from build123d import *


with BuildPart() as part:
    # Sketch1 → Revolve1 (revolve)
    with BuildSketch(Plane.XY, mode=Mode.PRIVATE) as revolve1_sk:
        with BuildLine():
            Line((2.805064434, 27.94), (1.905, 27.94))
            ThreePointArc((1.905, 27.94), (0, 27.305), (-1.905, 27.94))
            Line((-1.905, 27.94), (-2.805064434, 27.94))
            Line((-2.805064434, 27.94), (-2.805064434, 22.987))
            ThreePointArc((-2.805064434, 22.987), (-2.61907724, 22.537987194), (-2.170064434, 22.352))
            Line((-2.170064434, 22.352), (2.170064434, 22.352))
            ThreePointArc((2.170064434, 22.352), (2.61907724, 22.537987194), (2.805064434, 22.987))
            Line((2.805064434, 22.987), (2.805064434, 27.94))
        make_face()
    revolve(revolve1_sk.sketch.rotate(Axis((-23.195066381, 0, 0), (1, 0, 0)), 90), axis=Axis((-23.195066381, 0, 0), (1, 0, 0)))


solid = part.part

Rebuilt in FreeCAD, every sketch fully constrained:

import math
import FreeCAD as App
import Part
import Sketcher

V = App.Vector
Q = App.Units.Quantity

doc = App.newDocument("Part")
body = doc.addObject("PartDesign::Body", "Body")

sketch1 = body.newObject("Sketcher::SketchObject", "Sketch")
sketch1.AttachmentSupport = (doc.getObject("XY_Plane"), [""])
sketch1.MapMode = "FlatFace"
sketch1.addGeometry(Part.LineSegment(V(2.8, 27.9, 0), V(1.9, 27.9, 0)), False)
sketch1.addGeometry(Part.ArcOfCircle(Part.Circle(V(0, 30.5, 0), V(0, 0, 1), 3.2), math.radians(-127), math.radians(-53)), False)
sketch1.addGeometry(Part.LineSegment(V(-1.9, 27.9, 0), V(-2.8, 27.9, 0)), False)
sketch1.addGeometry(Part.LineSegment(V(-2.8, 27.9, 0), V(-2.8, 23, 0)), False)
sketch1.addGeometry(Part.ArcOfCircle(Part.Circle(V(-2.2, 23, 0), V(0, 0, 1), 0.6), math.radians(180), math.radians(270)), False)
sketch1.addGeometry(Part.LineSegment(V(-2.2, 22.4, 0), V(2.2, 22.4, 0)), False)
sketch1.addGeometry(Part.ArcOfCircle(Part.Circle(V(2.2, 23, 0), V(0, 0, 1), 0.6), math.radians(-90), math.radians(0)), False)
sketch1.addGeometry(Part.LineSegment(V(2.8, 23, 0), V(2.8, 27.9, 0)), False)
sketch1.addConstraint(Sketcher.Constraint("Coincident", 0, 2, 1, 2))
sketch1.addConstraint(Sketcher.Constraint("Coincident", 1, 1, 2, 1))
sketch1.addConstraint(Sketcher.Constraint("Coincident", 2, 2, 3, 1))
sketch1.addConstraint(Sketcher.Constraint("Tangent", 3, 2, 4, 1))
sketch1.addConstraint(Sketcher.Constraint("Tangent", 4, 2, 5, 1))
sketch1.addConstraint(Sketcher.Constraint("Tangent", 5, 2, 6, 1))
sketch1.addConstraint(Sketcher.Constraint("Tangent", 6, 2, 7, 1))
sketch1.addConstraint(Sketcher.Constraint("Coincident", 7, 2, 0, 1))
sketch1.addConstraint(Sketcher.Constraint("Horizontal", 0))
sketch1.addConstraint(Sketcher.Constraint("Horizontal", 2))
sketch1.addConstraint(Sketcher.Constraint("Vertical", 3))
sketch1.addConstraint(Sketcher.Constraint("Horizontal", 5))
sketch1.addConstraint(Sketcher.Constraint("Vertical", 7))
sketch1.addConstraint(Sketcher.Constraint("Equal", 4, 6))
sketch1.addConstraint(Sketcher.Constraint("Symmetric", 0, 2, 1, 1, -2))
sketch1.addConstraint(Sketcher.Constraint("Equal", 0, 2))
sketch1.addConstraint(Sketcher.Constraint("Radius", 1, Q("0.125 in")))
sketch1.addConstraint(Sketcher.Constraint("Radius", 4, Q("0.025 in")))
sketch1.addConstraint(Sketcher.Constraint("DistanceY", -1, 1, 1, 3, Q("1.2 in")))
sketch1.addConstraint(Sketcher.Constraint("DistanceY", -1, 1, 0, 2, Q("1.1 in")))
sketch1.addConstraint(Sketcher.Constraint("DistanceY", 3, 2, 3, 1, Q("0.195 in")))
sketch1.addConstraint(Sketcher.Constraint("DistanceX", 5, 1, 5, 2, 4.340129))
revolution = body.newObject("PartDesign::Revolution", "Revolution")
revolution.Profile = sketch1
revolution.ReferenceAxis = (sketch1, ["H_Axis"])
revolution.Angle = 360

doc.recompute()
